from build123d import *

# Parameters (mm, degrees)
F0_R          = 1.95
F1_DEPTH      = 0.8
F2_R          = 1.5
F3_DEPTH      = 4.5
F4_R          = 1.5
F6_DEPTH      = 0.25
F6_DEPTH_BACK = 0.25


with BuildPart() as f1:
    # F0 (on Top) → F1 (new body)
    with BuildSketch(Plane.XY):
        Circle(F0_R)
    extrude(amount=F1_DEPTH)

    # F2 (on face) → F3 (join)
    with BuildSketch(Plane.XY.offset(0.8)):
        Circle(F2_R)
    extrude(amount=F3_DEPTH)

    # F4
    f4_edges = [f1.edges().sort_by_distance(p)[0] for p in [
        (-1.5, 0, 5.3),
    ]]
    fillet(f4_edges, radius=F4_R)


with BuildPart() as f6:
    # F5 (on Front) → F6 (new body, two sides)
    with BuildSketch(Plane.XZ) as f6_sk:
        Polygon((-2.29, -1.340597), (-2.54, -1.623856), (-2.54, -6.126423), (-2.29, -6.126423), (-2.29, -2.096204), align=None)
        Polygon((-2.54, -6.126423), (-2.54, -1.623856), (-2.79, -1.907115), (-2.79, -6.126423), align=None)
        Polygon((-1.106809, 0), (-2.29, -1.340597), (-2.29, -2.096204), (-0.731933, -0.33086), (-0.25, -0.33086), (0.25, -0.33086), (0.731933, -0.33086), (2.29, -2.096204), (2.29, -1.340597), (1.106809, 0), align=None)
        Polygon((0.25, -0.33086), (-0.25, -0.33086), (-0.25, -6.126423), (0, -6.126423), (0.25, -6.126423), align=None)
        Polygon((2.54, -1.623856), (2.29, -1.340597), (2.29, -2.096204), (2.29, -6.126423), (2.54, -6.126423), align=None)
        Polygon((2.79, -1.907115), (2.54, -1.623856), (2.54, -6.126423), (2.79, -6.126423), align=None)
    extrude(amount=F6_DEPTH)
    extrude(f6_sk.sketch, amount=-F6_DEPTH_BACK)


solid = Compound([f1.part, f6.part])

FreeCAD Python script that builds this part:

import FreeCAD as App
import Part
import Sketcher

V = App.Vector
Q = App.Units.Quantity


def edges_at(feature, points):
    """Names of the edges that pass closest to the given points."""
    edges = feature.Shape.Edges
    near = lambda p: min(range(len(edges)), key=lambda i: edges[i].distToShape(Part.Vertex(*p))[0])
    return sorted({f"Edge{near(p) + 1}" for p in points})

doc = App.newDocument("Part")
body = doc.addObject("PartDesign::Body", "Body")

sketch1 = doc.addObject("Sketcher::SketchObject", "Sketch")
body.addObject(sketch1)
sketch1.AttachmentSupport = (doc.XY_Plane, [""])
sketch1.MapMode = "FlatFace"
sketch1.addGeometry(Part.Circle(V(0, 0, 0), V(0, 0, 1), 1.9), False)
sketch1.addConstraint(Sketcher.Constraint("Coincident", 0, 3, -1, 1))
sketch1.addConstraint(Sketcher.Constraint("Diameter", 0, Q("3.9 mm")))
pad1 = doc.addObject("PartDesign::Pad", "Pad")
body.addObject(pad1)
pad1.Profile = sketch1
pad1.Length = 0.8

sketch2 = doc.addObject("Sketcher::SketchObject", "Sketch001")
body.addObject(sketch2)
sketch2.AttachmentSupport = (doc.XY_Plane, [""])
sketch2.MapMode = "FlatFace"
sketch2.AttachmentOffset = App.Placement(V(0, 0, 0.8), App.Rotation())
sketch2.addGeometry(Part.Circle(V(0, 0, 0), V(0, 0, 1), 1.5), False)
sketch2.addConstraint(Sketcher.Constraint("Coincident", 0, 3, -1, 1))
sketch2.addConstraint(Sketcher.Constraint("Diameter", 0, Q("3 mm")))
pad2 = doc.addObject("PartDesign::Pad", "Pad001")
body.addObject(pad2)
pad2.Profile = sketch2
pad2.Length = 4.5
doc.recompute()

fillet = doc.addObject("PartDesign::Fillet", "Fillet")
body.addObject(fillet)
fillet.Base = (pad2, edges_at(pad2, [(-1.5, 0, 5.3)]))
fillet.Radius = 1.5
body2 = doc.addObject("PartDesign::Body", "Body001")

sketch3 = doc.addObject("Sketcher::SketchObject", "Sketch002")
body2.addObject(sketch3)
sketch3.AttachmentSupport = (doc.getObject("XZ_Plane001"), [""])
sketch3.MapMode = "FlatFace"
sketch3.addGeometry(Part.LineSegment(V(-2.29, -1.34, 0), V(-2.79, -1.91, 0)), False)
sketch3.addGeometry(Part.LineSegment(V(-2.79, -1.91, 0), V(-2.79, -6.13, 0)), False)
sketch3.addGeometry(Part.LineSegment(V(-2.79, -6.13, 0), V(-2.29, -6.13, 0)), False)
sketch3.addGeometry(Part.LineSegment(V(-2.29, -6.13, 0), V(-2.29, -2.1, 0)), False)
sketch3.addGeometry(Part.LineSegment(V(-2.29, -2.1, 0), V(-0.73, -0.33, 0)), False)
sketch3.addGeometry(Part.LineSegment(V(-0.73, -0.33, 0), V(-0.25, -0.33, 0)), False)
sketch3.addGeometry(Part.LineSegment(V(-0.25, -0.33, 0), V(-0.25, -6.13, 0)), False)
sketch3.addGeometry(Part.LineSegment(V(-0.25, -6.13, 0), V(0.25, -6.13, 0)), False)
sketch3.addGeometry(Part.LineSegment(V(0.25, -6.13, 0), V(0.25, -0.33, 0)), False)
sketch3.addGeometry(Part.LineSegment(V(0.25, -0.33, 0), V(0.73, -0.33, 0)), False)
sketch3.addGeometry(Part.LineSegment(V(0.73, -0.33, 0), V(2.29, -2.1, 0)), False)
sketch3.addGeometry(Part.LineSegment(V(2.29, -2.1, 0), V(2.29, -6.13, 0)), False)
sketch3.addGeometry(Part.LineSegment(V(2.29, -6.13, 0), V(2.79, -6.13, 0)), False)
sketch3.addGeometry(Part.LineSegment(V(2.79, -6.13, 0), V(2.79, -1.91, 0)), False)
sketch3.addGeometry(Part.LineSegment(V(2.79, -1.91, 0), V(2.29, -1.34, 0)), False)
sketch3.addGeometry(Part.LineSegment(V(2.29, -1.34, 0), V(1.11, 0, 0)), False)
sketch3.addGeometry(Part.LineSegment(V(1.11, 0, 0), V(-1.11, 0, 0)), False)
sketch3.addGeometry(Part.LineSegment(V(-1.11, 0, 0), V(-2.29, -1.34, 0)), False)
sketch3.addConstraint(Sketcher.Constraint("Coincident", 0, 2, 1, 1))
sketch3.addConstraint(Sketcher.Constraint("Coincident", 1, 2, 2, 1))
sketch3.addConstraint(Sketcher.Constraint("Coincident", 2, 2, 3, 1))
sketch3.addConstraint(Sketcher.Constraint("Coincident", 3, 2, 4, 1))
sketch3.addConstraint(Sketcher.Constraint("Coincident", 4, 2, 5, 1))
sketch3.addConstraint(Sketcher.Constraint("Coincident", 5, 2, 6, 1))
sketch3.addConstraint(Sketcher.Constraint("Coincident", 6, 2, 7, 1))
sketch3.addConstraint(Sketcher.Constraint("Coincident", 7, 2, 8, 1))
sketch3.addConstraint(Sketcher.Constraint("Coincident", 8, 2, 9, 1))
sketch3.addConstraint(Sketcher.Constraint("Coincident", 9, 2, 10, 1))
sketch3.addConstraint(Sketcher.Constraint("Coincident", 10, 2, 11, 1))
sketch3.addConstraint(Sketcher.Constraint("Coincident", 11, 2, 12, 1))
sketch3.addConstraint(Sketcher.Constraint("Coincident", 12, 2, 13, 1))
sketch3.addConstraint(Sketcher.Constraint("Coincident", 13, 2, 14, 1))
sketch3.addConstraint(Sketcher.Constraint("Coincident", 14, 2, 15, 1))
sketch3.addConstraint(Sketcher.Constraint("Coincident", 15, 2, 16, 1))
sketch3.addConstraint(Sketcher.Constraint("Coincident", 16, 2, 17, 1))
sketch3.addConstraint(Sketcher.Constraint("Coincident", 17, 2, 0, 1))
sketch3.addConstraint(Sketcher.Constraint("Vertical", 1))
sketch3.addConstraint(Sketcher.Constraint("Horizontal", 2))
sketch3.addConstraint(Sketcher.Constraint("Vertical", 3))
sketch3.addConstraint(Sketcher.Constraint("Horizontal", 5))
sketch3.addConstraint(Sketcher.Constraint("Vertical", 6))
sketch3.addConstraint(Sketcher.Constraint("Horizontal", 7))
sketch3.addConstraint(Sketcher.Constraint("Vertical", 8))
sketch3.addConstraint(Sketcher.Constraint("Horizontal", 9))
sketch3.addConstraint(Sketcher.Constraint("Vertical", 11))
sketch3.addConstraint(Sketcher.Constraint("Horizontal", 12))
sketch3.addConstraint(Sketcher.Constraint("Vertical", 13))
sketch3.addConstraint(Sketcher.Constraint("Horizontal", 16))
sketch3.addConstraint(Sketcher.Constraint("Symmetric", 15, 2, 16, 2, -1, 1))
sketch3.addConstraint(Sketcher.Constraint("Symmetric", 5, 2, 8, 2, -2))
sketch3.addConstraint(Sketcher.Constraint("Symmetric", 3, 2, 10, 2, -2))
sketch3.addConstraint(Sketcher.Constraint("Symmetric", 1, 2, 12, 2, -2))
sketch3.addConstraint(Sketcher.Constraint("Symmetric", 14, 2, 17, 2, -2))
sketch3.addConstraint(Sketcher.Constraint("Parallel", 0, 4))
sketch3.addConstraint(Sketcher.Constraint("Parallel", 10, 14))
sketch3.addConstraint(Sketcher.Constraint("Parallel", 14, 15))
sketch3.addConstraint(Sketcher.Constraint("Parallel", 4, 17))
sketch3.addConstraint(Sketcher.Constraint("Horizontal", 2, 2, 6, 2))
sketch3.addConstraint(Sketcher.Constraint("Vertical", 11, 2, 14, 2))
sketch3.addConstraint(Sketcher.Constraint("Equal", 2, 7))
sketch3.addConstraint(Sketcher.Constraint("DistanceX", 2, 1, 2, 2, Q("0.5 mm")))
sketch3.addConstraint(Sketcher.Constraint("DistanceX", 0, 2, -1, 1, Q("2.79 mm")))
sketch3.addConstraint(Sketcher.Constraint("DistanceY", 3, 1, 3, 2, Q("4.030219 mm")))
sketch3.addConstraint(Sketcher.Constraint("DistanceX", 5, 1, 5, 2, Q("0.481933 mm")))
sketch3.addConstraint(Sketcher.Constraint("DistanceX", 16, 2, 16, 1, Q("2.213618 mm")))
sketch3.addConstraint(Sketcher.Constraint("DistanceY", 1, 2, 1, 1, Q("4.219308 mm")))
sketch3.addConstraint(Sketcher.Constraint("DistanceY", 6, 2, 6, 1, Q("5.795563 mm")))
pad3 = doc.addObject("PartDesign::Pad", "Pad002")
body2.addObject(pad3)
pad3.Profile = sketch3
pad3.Type = "TwoLengths"
pad3.Length = 0.25
pad3.Length2 = 0.25

doc.recompute()
